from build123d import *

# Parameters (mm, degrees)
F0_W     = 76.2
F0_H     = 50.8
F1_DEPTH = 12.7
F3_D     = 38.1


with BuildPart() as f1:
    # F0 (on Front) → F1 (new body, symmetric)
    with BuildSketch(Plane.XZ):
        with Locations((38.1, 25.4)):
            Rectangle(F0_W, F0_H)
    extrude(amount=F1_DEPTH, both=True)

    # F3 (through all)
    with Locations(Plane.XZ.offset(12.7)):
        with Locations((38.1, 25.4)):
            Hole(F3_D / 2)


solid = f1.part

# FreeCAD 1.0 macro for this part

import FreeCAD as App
import Part
import Sketcher

V = App.Vector
Q = App.Units.Quantity

doc = App.newDocument("Part")
body = doc.addObject("PartDesign::Body", "Body")

# Sketch on XZ plane
sketch1 = doc.addObject("Sketcher::SketchObject", "Sketch")
body.addObject(sketch1)
sketch1.AttachmentSupport = (doc.XZ_Plane, [""])
sketch1.MapMode = "FlatFace"
sketch1.addGeometry([
    Part.LineSegment(V(0, 51, 0), V(0, 0, 0)),
    Part.LineSegment(V(0, 0, 0), V(76, 0, 0)),
    Part.LineSegment(V(76, 0, 0), V(76, 51, 0)),
    Part.LineSegment(V(76, 51, 0), V(0, 51, 0)),
], False)
sketch1.addConstraint([
    Sketcher.Constraint("Coincident", 0, 2, 1, 1),
    Sketcher.Constraint("Coincident", 1, 2, 2, 1),
    Sketcher.Constraint("Coincident", 2, 2, 3, 1),
    Sketcher.Constraint("Coincident", 3, 2, 0, 1),
    Sketcher.Constraint("Vertical", 0),
    Sketcher.Constraint("Horizontal", 1),
    Sketcher.Constraint("Vertical", 2),
    Sketcher.Constraint("Horizontal", 3),
    Sketcher.Constraint("Coincident", 0, 2, -1, 1),
    Sketcher.Constraint("DistanceX", 1, 1, 1, 2, Q("3 in")),
    Sketcher.Constraint("DistanceY", 0, 2, 0, 1, Q("2 in")),
])
pad1 = doc.addObject("PartDesign::Pad", "Pad")
body.addObject(pad1)
pad1.Profile = sketch1
pad1.Length = Q("1 in")
pad1.Midplane = True

# Sketch on XZ plane
sketch2 = doc.addObject("Sketcher::SketchObject", "Sketch001")
body.addObject(sketch2)
sketch2.AttachmentSupport = (doc.XZ_Plane, [""])
sketch2.MapMode = "FlatFace"
sketch2.AttachmentOffset = App.Placement(V(0, 0, 0.5 * 25.4), App.Rotation())
sketch2.addGeometry(Part.Circle(V(38, 25, 0), V(0, 0, 1), 19), False)
sketch2.addConstraint([
    Sketcher.Constraint("Diameter", 0, Q("1.5 in")),
    Sketcher.Constraint("DistanceY", -1, 1, 0, 3, Q("1 in")),
    Sketcher.Constraint("DistanceX", -1, 1, 0, 3, Q("1.5 in")),
])
doc.recompute()
hole = doc.addObject("PartDesign::Hole", "Hole")
body.addObject(hole)
hole.Profile = sketch2
hole.ThreadType = "None"
hole.Diameter = Q("1.5 in")
hole.DepthType = "ThroughAll"

doc.recompute()
